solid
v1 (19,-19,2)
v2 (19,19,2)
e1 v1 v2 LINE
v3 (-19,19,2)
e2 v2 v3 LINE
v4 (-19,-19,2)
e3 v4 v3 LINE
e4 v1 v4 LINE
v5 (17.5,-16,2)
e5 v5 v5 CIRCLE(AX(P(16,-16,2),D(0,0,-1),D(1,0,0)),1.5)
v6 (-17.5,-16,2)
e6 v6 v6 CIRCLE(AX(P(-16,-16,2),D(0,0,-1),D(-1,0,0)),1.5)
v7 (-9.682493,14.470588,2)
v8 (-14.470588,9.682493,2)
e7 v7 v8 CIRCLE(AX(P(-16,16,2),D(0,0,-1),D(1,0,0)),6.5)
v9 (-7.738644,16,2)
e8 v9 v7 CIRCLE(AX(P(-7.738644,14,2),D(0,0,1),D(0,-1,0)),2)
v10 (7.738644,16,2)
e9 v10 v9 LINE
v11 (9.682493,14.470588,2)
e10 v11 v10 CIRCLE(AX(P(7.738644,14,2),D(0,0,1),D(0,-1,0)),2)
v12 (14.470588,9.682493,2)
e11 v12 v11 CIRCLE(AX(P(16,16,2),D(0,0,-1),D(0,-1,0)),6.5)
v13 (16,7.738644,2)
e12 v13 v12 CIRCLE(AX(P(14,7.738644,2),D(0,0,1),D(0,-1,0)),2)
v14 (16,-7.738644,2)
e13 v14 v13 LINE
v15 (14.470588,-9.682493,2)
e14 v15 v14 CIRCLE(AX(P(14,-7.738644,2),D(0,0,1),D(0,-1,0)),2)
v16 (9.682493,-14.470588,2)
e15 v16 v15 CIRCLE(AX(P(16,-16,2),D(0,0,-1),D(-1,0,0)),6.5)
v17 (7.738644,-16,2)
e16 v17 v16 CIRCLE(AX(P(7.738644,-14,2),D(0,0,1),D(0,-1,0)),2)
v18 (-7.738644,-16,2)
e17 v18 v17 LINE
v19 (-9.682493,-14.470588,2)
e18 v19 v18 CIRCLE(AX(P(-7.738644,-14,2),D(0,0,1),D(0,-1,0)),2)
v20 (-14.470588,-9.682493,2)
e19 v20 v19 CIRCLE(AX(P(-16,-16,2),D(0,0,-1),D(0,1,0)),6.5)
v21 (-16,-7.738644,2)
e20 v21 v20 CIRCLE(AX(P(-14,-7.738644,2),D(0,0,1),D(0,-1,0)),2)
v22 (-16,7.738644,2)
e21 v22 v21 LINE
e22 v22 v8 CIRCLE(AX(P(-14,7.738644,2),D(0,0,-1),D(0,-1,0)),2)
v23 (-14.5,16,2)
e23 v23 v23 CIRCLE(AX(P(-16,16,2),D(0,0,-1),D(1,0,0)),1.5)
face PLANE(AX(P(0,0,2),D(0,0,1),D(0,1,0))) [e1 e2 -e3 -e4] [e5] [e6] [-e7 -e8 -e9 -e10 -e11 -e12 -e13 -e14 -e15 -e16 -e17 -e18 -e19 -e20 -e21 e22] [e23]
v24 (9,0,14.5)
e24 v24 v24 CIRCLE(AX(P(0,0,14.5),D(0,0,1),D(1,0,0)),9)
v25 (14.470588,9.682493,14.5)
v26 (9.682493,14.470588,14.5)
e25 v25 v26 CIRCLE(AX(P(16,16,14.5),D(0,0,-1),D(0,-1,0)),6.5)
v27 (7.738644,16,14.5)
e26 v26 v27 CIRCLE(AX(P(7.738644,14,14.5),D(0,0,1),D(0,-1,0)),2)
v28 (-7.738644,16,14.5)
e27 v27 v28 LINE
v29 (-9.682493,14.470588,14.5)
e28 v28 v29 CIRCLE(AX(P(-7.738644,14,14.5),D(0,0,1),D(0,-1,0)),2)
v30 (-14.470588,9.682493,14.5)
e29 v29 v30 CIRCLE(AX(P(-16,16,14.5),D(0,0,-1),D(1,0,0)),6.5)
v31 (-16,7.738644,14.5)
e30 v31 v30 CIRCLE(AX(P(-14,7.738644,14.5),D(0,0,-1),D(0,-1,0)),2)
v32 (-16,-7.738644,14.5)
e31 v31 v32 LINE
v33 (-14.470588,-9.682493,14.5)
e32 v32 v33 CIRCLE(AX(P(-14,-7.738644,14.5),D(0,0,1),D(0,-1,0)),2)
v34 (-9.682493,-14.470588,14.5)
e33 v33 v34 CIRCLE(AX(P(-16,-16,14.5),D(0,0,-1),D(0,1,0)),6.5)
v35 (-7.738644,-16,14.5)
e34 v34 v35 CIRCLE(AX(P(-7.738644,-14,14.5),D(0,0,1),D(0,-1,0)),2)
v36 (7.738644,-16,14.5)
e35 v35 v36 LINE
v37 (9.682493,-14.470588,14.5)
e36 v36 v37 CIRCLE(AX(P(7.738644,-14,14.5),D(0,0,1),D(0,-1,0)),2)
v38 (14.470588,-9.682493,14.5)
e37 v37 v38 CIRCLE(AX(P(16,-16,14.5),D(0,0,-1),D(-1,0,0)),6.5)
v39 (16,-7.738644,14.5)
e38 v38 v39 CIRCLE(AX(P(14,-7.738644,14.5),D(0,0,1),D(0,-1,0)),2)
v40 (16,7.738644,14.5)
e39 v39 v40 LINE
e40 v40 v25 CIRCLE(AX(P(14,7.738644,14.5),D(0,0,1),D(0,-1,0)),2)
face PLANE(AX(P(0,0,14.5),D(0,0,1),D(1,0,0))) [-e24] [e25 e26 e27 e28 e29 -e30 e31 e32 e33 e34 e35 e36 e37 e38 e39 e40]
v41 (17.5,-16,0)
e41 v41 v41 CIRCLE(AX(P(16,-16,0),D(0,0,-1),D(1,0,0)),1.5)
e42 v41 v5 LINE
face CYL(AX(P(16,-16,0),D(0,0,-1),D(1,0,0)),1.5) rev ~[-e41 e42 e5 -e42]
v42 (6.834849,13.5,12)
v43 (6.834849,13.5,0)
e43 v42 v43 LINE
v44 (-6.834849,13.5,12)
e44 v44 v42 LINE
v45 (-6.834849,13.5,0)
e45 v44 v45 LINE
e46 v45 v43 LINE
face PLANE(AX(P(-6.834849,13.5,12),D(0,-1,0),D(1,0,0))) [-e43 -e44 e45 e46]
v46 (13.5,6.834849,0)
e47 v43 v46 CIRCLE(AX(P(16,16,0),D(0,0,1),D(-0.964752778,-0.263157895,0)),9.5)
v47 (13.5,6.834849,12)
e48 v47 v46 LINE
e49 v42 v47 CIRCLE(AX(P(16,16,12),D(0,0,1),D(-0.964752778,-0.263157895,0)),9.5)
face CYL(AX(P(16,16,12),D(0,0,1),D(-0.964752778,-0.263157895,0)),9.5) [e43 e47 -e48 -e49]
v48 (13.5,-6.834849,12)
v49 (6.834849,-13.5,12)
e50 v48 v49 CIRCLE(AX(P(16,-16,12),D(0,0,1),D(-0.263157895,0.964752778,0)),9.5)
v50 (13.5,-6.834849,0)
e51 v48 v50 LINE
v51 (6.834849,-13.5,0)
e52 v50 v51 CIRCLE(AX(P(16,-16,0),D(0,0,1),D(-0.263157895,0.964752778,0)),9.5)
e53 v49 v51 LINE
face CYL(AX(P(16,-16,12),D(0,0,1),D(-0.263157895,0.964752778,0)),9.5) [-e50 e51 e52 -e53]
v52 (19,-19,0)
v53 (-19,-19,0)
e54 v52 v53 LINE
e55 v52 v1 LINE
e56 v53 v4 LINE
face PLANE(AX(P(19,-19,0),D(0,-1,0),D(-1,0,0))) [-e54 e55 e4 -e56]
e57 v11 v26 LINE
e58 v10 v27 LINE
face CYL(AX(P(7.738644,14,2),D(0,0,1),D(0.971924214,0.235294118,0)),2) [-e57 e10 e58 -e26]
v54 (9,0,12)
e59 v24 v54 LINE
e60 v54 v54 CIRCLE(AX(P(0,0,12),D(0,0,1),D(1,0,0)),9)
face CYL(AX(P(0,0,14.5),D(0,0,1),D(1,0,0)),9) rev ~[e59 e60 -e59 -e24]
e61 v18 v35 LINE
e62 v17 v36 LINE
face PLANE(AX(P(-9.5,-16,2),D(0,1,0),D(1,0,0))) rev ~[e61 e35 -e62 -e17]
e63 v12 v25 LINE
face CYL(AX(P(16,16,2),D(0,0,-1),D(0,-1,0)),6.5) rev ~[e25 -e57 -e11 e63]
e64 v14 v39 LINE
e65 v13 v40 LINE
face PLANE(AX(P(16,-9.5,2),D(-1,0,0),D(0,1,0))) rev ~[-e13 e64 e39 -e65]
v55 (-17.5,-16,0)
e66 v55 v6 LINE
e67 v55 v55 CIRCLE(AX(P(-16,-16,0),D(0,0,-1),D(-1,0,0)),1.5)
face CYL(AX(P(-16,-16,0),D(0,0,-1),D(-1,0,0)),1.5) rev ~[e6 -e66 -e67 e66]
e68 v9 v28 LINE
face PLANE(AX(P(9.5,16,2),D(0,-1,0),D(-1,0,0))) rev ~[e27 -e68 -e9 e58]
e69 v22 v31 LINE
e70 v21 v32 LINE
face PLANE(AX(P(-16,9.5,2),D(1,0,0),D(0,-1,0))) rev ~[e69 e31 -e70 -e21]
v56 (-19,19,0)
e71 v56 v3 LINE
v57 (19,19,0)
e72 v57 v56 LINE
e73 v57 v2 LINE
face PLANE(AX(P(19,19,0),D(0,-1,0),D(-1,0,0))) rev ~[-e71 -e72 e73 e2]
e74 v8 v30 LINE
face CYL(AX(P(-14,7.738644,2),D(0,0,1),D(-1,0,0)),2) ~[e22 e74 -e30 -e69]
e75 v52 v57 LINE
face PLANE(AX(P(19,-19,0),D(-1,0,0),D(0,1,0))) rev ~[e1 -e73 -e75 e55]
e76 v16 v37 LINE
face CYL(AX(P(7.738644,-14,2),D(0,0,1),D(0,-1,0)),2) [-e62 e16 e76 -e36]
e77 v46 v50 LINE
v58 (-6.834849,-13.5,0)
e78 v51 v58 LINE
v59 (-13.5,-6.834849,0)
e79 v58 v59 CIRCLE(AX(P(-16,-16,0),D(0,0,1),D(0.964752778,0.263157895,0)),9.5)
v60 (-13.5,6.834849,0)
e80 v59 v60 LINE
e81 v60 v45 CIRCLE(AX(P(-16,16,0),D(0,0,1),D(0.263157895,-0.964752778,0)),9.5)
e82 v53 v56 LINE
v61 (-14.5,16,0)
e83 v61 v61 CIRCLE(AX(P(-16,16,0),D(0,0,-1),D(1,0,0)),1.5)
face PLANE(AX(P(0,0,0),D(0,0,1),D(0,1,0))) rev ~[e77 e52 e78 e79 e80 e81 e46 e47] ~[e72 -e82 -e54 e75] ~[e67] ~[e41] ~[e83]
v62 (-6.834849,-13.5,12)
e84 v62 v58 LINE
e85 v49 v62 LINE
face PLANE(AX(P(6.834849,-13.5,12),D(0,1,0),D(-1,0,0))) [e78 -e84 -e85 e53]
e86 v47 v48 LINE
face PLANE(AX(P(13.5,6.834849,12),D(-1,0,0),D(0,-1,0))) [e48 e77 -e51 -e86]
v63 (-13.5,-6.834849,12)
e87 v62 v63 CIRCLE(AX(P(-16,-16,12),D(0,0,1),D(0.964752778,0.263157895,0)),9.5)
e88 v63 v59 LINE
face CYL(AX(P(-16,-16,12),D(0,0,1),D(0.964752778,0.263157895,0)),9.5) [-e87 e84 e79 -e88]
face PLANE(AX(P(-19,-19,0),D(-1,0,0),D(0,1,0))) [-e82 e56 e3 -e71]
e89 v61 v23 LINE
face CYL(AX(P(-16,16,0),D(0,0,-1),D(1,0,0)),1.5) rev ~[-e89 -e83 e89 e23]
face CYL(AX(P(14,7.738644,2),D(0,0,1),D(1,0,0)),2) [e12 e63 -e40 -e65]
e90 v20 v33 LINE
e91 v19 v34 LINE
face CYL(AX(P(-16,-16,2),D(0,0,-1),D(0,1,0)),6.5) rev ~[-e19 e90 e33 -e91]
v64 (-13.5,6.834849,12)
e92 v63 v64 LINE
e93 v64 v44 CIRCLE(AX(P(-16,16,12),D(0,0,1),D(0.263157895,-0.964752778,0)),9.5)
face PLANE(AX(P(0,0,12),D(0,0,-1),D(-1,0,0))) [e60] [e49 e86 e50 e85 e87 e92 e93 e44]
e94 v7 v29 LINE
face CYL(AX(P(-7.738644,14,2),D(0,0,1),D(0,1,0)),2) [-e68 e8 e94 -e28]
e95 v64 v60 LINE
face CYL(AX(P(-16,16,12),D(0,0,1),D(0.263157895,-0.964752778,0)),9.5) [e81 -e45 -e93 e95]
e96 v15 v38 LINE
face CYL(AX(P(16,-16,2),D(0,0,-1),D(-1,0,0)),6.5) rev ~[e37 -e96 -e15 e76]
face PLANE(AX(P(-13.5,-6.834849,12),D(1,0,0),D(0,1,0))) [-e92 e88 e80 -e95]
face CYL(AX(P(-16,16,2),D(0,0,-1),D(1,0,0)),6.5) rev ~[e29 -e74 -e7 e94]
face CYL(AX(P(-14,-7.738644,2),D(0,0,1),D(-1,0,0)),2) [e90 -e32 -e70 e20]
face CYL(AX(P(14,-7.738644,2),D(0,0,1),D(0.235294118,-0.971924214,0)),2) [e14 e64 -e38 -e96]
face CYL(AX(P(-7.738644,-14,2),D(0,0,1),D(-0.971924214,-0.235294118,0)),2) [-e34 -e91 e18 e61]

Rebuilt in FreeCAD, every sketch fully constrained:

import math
import FreeCAD as App
import Part
import Sketcher
from FreeCAD import Vector
Q = App.Units.Quantity


def edges_at(feature, points):
    """Names of the edges that pass closest to the given points."""
    edges = feature.Shape.Edges
    near = lambda p: min(range(len(edges)), key=lambda i: edges[i].distToShape(Part.Vertex(*p))[0])
    return sorted({f"Edge{near(p) + 1}" for p in points})

doc = App.newDocument("Part")
body = doc.addObject("PartDesign::Body", "Body")

sketch1 = body.newObject("Sketcher::SketchObject", "Sketch")
sketch1.AttachmentSupport = (doc.getObject("XY_Plane"), [""])
sketch1.MapMode = "FlatFace"
sketch1.addGeometry([
    Part.LineSegment(Vector(-19, -19, 0), Vector(19, -19, 0)),
    Part.LineSegment(Vector(19, -19, 0), Vector(19, 19, 0)),
    Part.LineSegment(Vector(19, 19, 0), Vector(-19, 19, 0)),
    Part.LineSegment(Vector(-19, 19, 0), Vector(-19, -19, 0)),
], False)
sketch1.addConstraint([
    Sketcher.Constraint("Coincident", 0, 2, 1, 1),
    Sketcher.Constraint("Coincident", 1, 2, 2, 1),
    Sketcher.Constraint("Coincident", 2, 2, 3, 1),
    Sketcher.Constraint("Coincident", 3, 2, 0, 1),
    Sketcher.Constraint("Horizontal", 0),
    Sketcher.Constraint("Vertical", 1),
    Sketcher.Constraint("Horizontal", 2),
    Sketcher.Constraint("Vertical", 3),
    Sketcher.Constraint("Symmetric", 0, 2, 2, 2, -1, 1),
    Sketcher.Constraint("Equal", 2, 1),
    Sketcher.Constraint("DistanceX", 0, 1, 0, 2, Q("38 mm")),
])
pad1 = body.newObject("PartDesign::Pad", "Pad")
pad1.Profile = sketch1
pad1.Length = 2

sketch2 = body.newObject("Sketcher::SketchObject", "Sketch001")
sketch2.AttachmentSupport = (doc.getObject("XY_Plane"), [""])
sketch2.MapMode = "FlatFace"
sketch2.addGeometry([
    Part.Circle(Vector(-16, -16, 0), Vector(0, 0, 1), 1.5),
    Part.Circle(Vector(-16, 16, 0), Vector(0, 0, 1), 1.5),
    Part.Circle(Vector(16, -16, 0), Vector(0, 0, 1), 1.5),
], False)
sketch2.addConstraint([
    Sketcher.Constraint("Equal", 0, 1),
    Sketcher.Constraint("Equal", 1, 2),
    Sketcher.Constraint("Symmetric", 1, 3, 2, 3, -1, 1),
    Sketcher.Constraint("Symmetric", 0, 3, 2, 3, -2),
    Sketcher.Constraint("Diameter", 0, Q("3 mm")),
    Sketcher.Constraint("DistanceX", 0, 3, -1, 1, Q("16 mm")),
    Sketcher.Constraint("DistanceY", 0, 3, -1, 1, Q("16 mm")),
])
pocket1 = body.newObject("PartDesign::Pocket", "Pocket")
pocket1.Profile = sketch2
pocket1.Type = "ThroughAll"
pocket1.Reversed = True

sketch3 = body.newObject("Sketcher::SketchObject", "Sketch002")
sketch3.AttachmentSupport = (doc.getObject("XY_Plane"), [""])
sketch3.MapMode = "FlatFace"
sketch3.AttachmentOffset = App.Placement(Vector(0, 0, 2), App.Rotation())
sketch3.addGeometry([
    Part.LineSegment(Vector(-16, 10, 0), Vector(-16, -10, 0)),
    Part.ArcOfCircle(Part.Circle(Vector(-16, -16, 0), Vector(0, 0, 1), 6), math.radians(0), math.radians(90)),
    Part.LineSegment(Vector(-10, -16, 0), Vector(10, -16, 0)),
    Part.ArcOfCircle(Part.Circle(Vector(16, -16, 0), Vector(0, 0, 1), 6), math.radians(90), math.radians(180)),
    Part.LineSegment(Vector(16, -10, 0), Vector(16, 10, 0)),
    Part.ArcOfCircle(Part.Circle(Vector(16, 16, 0), Vector(0, 0, 1), 6), math.radians(180), math.radians(270)),
    Part.LineSegment(Vector(10, 16, 0), Vector(-10, 16, 0)),
    Part.ArcOfCircle(Part.Circle(Vector(-16, 16, 0), Vector(0, 0, 1), 6), math.radians(-90), math.radians(0)),
], False)
sketch3.addConstraint([
    Sketcher.Constraint("Coincident", 0, 2, 1, 2),
    Sketcher.Constraint("Coincident", 1, 1, 2, 1),
    Sketcher.Constraint("Coincident", 2, 2, 3, 2),
    Sketcher.Constraint("Coincident", 3, 1, 4, 1),
    Sketcher.Constraint("Coincident", 4, 2, 5, 2),
    Sketcher.Constraint("Coincident", 5, 1, 6, 1),
    Sketcher.Constraint("Coincident", 6, 2, 7, 2),
    Sketcher.Constraint("Coincident", 7, 1, 0, 1),
    Sketcher.Constraint("Vertical", 0),
    Sketcher.Constraint("Horizontal", 2),
    Sketcher.Constraint("Vertical", 4),
    Sketcher.Constraint("Horizontal", 6),
    Sketcher.Constraint("Equal", 1, 3),
    Sketcher.Constraint("Equal", 3, 5),
    Sketcher.Constraint("Equal", 5, 7),
    Sketcher.Constraint("Symmetric", 1, 3, 5, 3, -1, 1),
    Sketcher.Constraint("Symmetric", 3, 3, 7, 3, -1, 1),
    Sketcher.Constraint("Symmetric", 1, 3, 3, 3, -2),
    Sketcher.Constraint("Horizontal", 3, 3, 1, 1),
    Sketcher.Constraint("Horizontal", 7, 3, 5, 1),
    Sketcher.Constraint("Vertical", 7, 3, 0, 2),
    Sketcher.Constraint("Vertical", 5, 3, 3, 1),
    Sketcher.Constraint("Equal", 6, 0),
    Sketcher.Constraint("Radius", 1, Q("6.5 mm")),
    Sketcher.Constraint("DistanceX", 2, 1, 2, 2, Q("19 mm")),
])
pad2 = body.newObject("PartDesign::Pad", "Pad001")
pad2.Profile = sketch3
pad2.Length = 12.5

sketch4 = body.newObject("Sketcher::SketchObject", "Sketch003")
sketch4.AttachmentSupport = (doc.getObject("XY_Plane"), [""])
sketch4.MapMode = "FlatFace"
sketch4.AttachmentOffset = App.Placement(Vector(0, 0, 14.5), App.Rotation())
sketch4.addGeometry(Part.Circle(Vector(0, 0, 0), Vector(0, 0, 1), 9), False)
sketch4.addConstraint([
    Sketcher.Constraint("Coincident", 0, 3, -1, 1),
    Sketcher.Constraint("Diameter", 0, Q("18 mm")),
])
pocket2 = body.newObject("PartDesign::Pocket", "Pocket001")
pocket2.Profile = sketch4
pocket2.Type = "ThroughAll"

sketch5 = body.newObject("Sketcher::SketchObject", "Sketch004")
sketch5.AttachmentSupport = (doc.getObject("XY_Plane"), [""])
sketch5.MapMode = "FlatFace"
sketch5.AttachmentOffset = App.Placement(Vector(0, 0, 12), App.Rotation())
sketch5.addGeometry([
    Part.LineSegment(Vector(-14, 7, 0), Vector(-14, -7, 0)),
    Part.ArcOfCircle(Part.Circle(Vector(-16, -16, 0), Vector(0, 0, 1), 10), math.radians(15), math.radians(75)),
    Part.LineSegment(Vector(-7, -14, 0), Vector(7, -14, 0)),
    Part.ArcOfCircle(Part.Circle(Vector(16, -16, 0), Vector(0, 0, 1), 10), math.radians(105), math.radians(165)),
    Part.LineSegment(Vector(14, -7, 0), Vector(14, 7, 0)),
    Part.ArcOfCircle(Part.Circle(Vector(16, 16, 0), Vector(0, 0, 1), 10), math.radians(-165), math.radians(-105)),
    Part.LineSegment(Vector(7, 14, 0), Vector(-7, 14, 0)),
    Part.ArcOfCircle(Part.Circle(Vector(-16, 16, 0), Vector(0, 0, 1), 10), math.radians(-75), math.radians(-15)),
], False)
sketch5.addConstraint([
    Sketcher.Constraint("Coincident", 0, 2, 1, 2),
    Sketcher.Constraint("Coincident", 1, 1, 2, 1),
    Sketcher.Constraint("Coincident", 2, 2, 3, 2),
    Sketcher.Constraint("Coincident", 3, 1, 4, 1),
    Sketcher.Constraint("Coincident", 4, 2, 5, 2),
    Sketcher.Constraint("Coincident", 5, 1, 6, 1),
    Sketcher.Constraint("Coincident", 6, 2, 7, 2),
    Sketcher.Constraint("Coincident", 7, 1, 0, 1),
    Sketcher.Constraint("Vertical", 0),
    Sketcher.Constraint("Horizontal", 2),
    Sketcher.Constraint("Vertical", 4),
    Sketcher.Constraint("Horizontal", 6),
    Sketcher.Constraint("Equal", 1, 3),
    Sketcher.Constraint("Equal", 3, 5),
    Sketcher.Constraint("Equal", 5, 7),
    Sketcher.Constraint("Symmetric", 1, 3, 5, 3, -1, 1),
    Sketcher.Constraint("Symmetric", 3, 3, 7, 3, -1, 1),
    Sketcher.Constraint("Symmetric", 1, 3, 3, 3, -2),
    Sketcher.Constraint("Horizontal", 0, 2, 3, 1),
    Sketcher.Constraint("Vertical", 2, 2, 5, 1),
    Sketcher.Constraint("Equal", 6, 0),
    Sketcher.Constraint("Radius", 1, Q("9.5 mm")),
    Sketcher.Constraint("DistanceX", 1, 3, -1, 1, Q("16 mm")),
    Sketcher.Constraint("DistanceY", 1, 3, -1, 1, Q("16 mm")),
    Sketcher.Constraint("DistanceX", 0, 2, 3, 1, Q("27 mm")),
])
pocket3 = body.newObject("PartDesign::Pocket", "Pocket002")
pocket3.Profile = sketch5
pocket3.Type = "ThroughAll"
doc.recompute()

fillet = body.newObject("PartDesign::Fillet", "Fillet")
fillet.Base = (pocket3, edges_at(pocket3, [
    (-9.5, 16, 8.25),
    (-16, 9.5, 8.25),
    (-16, -9.5, 8.25),
    (-9.5, -16, 8.25),
    (9.5, -16, 8.25),
    (16, -9.5, 8.25),
    (16, 9.5, 8.25),
    (9.5, 16, 8.25),
]))
fillet.Radius = 2

doc.recompute()
